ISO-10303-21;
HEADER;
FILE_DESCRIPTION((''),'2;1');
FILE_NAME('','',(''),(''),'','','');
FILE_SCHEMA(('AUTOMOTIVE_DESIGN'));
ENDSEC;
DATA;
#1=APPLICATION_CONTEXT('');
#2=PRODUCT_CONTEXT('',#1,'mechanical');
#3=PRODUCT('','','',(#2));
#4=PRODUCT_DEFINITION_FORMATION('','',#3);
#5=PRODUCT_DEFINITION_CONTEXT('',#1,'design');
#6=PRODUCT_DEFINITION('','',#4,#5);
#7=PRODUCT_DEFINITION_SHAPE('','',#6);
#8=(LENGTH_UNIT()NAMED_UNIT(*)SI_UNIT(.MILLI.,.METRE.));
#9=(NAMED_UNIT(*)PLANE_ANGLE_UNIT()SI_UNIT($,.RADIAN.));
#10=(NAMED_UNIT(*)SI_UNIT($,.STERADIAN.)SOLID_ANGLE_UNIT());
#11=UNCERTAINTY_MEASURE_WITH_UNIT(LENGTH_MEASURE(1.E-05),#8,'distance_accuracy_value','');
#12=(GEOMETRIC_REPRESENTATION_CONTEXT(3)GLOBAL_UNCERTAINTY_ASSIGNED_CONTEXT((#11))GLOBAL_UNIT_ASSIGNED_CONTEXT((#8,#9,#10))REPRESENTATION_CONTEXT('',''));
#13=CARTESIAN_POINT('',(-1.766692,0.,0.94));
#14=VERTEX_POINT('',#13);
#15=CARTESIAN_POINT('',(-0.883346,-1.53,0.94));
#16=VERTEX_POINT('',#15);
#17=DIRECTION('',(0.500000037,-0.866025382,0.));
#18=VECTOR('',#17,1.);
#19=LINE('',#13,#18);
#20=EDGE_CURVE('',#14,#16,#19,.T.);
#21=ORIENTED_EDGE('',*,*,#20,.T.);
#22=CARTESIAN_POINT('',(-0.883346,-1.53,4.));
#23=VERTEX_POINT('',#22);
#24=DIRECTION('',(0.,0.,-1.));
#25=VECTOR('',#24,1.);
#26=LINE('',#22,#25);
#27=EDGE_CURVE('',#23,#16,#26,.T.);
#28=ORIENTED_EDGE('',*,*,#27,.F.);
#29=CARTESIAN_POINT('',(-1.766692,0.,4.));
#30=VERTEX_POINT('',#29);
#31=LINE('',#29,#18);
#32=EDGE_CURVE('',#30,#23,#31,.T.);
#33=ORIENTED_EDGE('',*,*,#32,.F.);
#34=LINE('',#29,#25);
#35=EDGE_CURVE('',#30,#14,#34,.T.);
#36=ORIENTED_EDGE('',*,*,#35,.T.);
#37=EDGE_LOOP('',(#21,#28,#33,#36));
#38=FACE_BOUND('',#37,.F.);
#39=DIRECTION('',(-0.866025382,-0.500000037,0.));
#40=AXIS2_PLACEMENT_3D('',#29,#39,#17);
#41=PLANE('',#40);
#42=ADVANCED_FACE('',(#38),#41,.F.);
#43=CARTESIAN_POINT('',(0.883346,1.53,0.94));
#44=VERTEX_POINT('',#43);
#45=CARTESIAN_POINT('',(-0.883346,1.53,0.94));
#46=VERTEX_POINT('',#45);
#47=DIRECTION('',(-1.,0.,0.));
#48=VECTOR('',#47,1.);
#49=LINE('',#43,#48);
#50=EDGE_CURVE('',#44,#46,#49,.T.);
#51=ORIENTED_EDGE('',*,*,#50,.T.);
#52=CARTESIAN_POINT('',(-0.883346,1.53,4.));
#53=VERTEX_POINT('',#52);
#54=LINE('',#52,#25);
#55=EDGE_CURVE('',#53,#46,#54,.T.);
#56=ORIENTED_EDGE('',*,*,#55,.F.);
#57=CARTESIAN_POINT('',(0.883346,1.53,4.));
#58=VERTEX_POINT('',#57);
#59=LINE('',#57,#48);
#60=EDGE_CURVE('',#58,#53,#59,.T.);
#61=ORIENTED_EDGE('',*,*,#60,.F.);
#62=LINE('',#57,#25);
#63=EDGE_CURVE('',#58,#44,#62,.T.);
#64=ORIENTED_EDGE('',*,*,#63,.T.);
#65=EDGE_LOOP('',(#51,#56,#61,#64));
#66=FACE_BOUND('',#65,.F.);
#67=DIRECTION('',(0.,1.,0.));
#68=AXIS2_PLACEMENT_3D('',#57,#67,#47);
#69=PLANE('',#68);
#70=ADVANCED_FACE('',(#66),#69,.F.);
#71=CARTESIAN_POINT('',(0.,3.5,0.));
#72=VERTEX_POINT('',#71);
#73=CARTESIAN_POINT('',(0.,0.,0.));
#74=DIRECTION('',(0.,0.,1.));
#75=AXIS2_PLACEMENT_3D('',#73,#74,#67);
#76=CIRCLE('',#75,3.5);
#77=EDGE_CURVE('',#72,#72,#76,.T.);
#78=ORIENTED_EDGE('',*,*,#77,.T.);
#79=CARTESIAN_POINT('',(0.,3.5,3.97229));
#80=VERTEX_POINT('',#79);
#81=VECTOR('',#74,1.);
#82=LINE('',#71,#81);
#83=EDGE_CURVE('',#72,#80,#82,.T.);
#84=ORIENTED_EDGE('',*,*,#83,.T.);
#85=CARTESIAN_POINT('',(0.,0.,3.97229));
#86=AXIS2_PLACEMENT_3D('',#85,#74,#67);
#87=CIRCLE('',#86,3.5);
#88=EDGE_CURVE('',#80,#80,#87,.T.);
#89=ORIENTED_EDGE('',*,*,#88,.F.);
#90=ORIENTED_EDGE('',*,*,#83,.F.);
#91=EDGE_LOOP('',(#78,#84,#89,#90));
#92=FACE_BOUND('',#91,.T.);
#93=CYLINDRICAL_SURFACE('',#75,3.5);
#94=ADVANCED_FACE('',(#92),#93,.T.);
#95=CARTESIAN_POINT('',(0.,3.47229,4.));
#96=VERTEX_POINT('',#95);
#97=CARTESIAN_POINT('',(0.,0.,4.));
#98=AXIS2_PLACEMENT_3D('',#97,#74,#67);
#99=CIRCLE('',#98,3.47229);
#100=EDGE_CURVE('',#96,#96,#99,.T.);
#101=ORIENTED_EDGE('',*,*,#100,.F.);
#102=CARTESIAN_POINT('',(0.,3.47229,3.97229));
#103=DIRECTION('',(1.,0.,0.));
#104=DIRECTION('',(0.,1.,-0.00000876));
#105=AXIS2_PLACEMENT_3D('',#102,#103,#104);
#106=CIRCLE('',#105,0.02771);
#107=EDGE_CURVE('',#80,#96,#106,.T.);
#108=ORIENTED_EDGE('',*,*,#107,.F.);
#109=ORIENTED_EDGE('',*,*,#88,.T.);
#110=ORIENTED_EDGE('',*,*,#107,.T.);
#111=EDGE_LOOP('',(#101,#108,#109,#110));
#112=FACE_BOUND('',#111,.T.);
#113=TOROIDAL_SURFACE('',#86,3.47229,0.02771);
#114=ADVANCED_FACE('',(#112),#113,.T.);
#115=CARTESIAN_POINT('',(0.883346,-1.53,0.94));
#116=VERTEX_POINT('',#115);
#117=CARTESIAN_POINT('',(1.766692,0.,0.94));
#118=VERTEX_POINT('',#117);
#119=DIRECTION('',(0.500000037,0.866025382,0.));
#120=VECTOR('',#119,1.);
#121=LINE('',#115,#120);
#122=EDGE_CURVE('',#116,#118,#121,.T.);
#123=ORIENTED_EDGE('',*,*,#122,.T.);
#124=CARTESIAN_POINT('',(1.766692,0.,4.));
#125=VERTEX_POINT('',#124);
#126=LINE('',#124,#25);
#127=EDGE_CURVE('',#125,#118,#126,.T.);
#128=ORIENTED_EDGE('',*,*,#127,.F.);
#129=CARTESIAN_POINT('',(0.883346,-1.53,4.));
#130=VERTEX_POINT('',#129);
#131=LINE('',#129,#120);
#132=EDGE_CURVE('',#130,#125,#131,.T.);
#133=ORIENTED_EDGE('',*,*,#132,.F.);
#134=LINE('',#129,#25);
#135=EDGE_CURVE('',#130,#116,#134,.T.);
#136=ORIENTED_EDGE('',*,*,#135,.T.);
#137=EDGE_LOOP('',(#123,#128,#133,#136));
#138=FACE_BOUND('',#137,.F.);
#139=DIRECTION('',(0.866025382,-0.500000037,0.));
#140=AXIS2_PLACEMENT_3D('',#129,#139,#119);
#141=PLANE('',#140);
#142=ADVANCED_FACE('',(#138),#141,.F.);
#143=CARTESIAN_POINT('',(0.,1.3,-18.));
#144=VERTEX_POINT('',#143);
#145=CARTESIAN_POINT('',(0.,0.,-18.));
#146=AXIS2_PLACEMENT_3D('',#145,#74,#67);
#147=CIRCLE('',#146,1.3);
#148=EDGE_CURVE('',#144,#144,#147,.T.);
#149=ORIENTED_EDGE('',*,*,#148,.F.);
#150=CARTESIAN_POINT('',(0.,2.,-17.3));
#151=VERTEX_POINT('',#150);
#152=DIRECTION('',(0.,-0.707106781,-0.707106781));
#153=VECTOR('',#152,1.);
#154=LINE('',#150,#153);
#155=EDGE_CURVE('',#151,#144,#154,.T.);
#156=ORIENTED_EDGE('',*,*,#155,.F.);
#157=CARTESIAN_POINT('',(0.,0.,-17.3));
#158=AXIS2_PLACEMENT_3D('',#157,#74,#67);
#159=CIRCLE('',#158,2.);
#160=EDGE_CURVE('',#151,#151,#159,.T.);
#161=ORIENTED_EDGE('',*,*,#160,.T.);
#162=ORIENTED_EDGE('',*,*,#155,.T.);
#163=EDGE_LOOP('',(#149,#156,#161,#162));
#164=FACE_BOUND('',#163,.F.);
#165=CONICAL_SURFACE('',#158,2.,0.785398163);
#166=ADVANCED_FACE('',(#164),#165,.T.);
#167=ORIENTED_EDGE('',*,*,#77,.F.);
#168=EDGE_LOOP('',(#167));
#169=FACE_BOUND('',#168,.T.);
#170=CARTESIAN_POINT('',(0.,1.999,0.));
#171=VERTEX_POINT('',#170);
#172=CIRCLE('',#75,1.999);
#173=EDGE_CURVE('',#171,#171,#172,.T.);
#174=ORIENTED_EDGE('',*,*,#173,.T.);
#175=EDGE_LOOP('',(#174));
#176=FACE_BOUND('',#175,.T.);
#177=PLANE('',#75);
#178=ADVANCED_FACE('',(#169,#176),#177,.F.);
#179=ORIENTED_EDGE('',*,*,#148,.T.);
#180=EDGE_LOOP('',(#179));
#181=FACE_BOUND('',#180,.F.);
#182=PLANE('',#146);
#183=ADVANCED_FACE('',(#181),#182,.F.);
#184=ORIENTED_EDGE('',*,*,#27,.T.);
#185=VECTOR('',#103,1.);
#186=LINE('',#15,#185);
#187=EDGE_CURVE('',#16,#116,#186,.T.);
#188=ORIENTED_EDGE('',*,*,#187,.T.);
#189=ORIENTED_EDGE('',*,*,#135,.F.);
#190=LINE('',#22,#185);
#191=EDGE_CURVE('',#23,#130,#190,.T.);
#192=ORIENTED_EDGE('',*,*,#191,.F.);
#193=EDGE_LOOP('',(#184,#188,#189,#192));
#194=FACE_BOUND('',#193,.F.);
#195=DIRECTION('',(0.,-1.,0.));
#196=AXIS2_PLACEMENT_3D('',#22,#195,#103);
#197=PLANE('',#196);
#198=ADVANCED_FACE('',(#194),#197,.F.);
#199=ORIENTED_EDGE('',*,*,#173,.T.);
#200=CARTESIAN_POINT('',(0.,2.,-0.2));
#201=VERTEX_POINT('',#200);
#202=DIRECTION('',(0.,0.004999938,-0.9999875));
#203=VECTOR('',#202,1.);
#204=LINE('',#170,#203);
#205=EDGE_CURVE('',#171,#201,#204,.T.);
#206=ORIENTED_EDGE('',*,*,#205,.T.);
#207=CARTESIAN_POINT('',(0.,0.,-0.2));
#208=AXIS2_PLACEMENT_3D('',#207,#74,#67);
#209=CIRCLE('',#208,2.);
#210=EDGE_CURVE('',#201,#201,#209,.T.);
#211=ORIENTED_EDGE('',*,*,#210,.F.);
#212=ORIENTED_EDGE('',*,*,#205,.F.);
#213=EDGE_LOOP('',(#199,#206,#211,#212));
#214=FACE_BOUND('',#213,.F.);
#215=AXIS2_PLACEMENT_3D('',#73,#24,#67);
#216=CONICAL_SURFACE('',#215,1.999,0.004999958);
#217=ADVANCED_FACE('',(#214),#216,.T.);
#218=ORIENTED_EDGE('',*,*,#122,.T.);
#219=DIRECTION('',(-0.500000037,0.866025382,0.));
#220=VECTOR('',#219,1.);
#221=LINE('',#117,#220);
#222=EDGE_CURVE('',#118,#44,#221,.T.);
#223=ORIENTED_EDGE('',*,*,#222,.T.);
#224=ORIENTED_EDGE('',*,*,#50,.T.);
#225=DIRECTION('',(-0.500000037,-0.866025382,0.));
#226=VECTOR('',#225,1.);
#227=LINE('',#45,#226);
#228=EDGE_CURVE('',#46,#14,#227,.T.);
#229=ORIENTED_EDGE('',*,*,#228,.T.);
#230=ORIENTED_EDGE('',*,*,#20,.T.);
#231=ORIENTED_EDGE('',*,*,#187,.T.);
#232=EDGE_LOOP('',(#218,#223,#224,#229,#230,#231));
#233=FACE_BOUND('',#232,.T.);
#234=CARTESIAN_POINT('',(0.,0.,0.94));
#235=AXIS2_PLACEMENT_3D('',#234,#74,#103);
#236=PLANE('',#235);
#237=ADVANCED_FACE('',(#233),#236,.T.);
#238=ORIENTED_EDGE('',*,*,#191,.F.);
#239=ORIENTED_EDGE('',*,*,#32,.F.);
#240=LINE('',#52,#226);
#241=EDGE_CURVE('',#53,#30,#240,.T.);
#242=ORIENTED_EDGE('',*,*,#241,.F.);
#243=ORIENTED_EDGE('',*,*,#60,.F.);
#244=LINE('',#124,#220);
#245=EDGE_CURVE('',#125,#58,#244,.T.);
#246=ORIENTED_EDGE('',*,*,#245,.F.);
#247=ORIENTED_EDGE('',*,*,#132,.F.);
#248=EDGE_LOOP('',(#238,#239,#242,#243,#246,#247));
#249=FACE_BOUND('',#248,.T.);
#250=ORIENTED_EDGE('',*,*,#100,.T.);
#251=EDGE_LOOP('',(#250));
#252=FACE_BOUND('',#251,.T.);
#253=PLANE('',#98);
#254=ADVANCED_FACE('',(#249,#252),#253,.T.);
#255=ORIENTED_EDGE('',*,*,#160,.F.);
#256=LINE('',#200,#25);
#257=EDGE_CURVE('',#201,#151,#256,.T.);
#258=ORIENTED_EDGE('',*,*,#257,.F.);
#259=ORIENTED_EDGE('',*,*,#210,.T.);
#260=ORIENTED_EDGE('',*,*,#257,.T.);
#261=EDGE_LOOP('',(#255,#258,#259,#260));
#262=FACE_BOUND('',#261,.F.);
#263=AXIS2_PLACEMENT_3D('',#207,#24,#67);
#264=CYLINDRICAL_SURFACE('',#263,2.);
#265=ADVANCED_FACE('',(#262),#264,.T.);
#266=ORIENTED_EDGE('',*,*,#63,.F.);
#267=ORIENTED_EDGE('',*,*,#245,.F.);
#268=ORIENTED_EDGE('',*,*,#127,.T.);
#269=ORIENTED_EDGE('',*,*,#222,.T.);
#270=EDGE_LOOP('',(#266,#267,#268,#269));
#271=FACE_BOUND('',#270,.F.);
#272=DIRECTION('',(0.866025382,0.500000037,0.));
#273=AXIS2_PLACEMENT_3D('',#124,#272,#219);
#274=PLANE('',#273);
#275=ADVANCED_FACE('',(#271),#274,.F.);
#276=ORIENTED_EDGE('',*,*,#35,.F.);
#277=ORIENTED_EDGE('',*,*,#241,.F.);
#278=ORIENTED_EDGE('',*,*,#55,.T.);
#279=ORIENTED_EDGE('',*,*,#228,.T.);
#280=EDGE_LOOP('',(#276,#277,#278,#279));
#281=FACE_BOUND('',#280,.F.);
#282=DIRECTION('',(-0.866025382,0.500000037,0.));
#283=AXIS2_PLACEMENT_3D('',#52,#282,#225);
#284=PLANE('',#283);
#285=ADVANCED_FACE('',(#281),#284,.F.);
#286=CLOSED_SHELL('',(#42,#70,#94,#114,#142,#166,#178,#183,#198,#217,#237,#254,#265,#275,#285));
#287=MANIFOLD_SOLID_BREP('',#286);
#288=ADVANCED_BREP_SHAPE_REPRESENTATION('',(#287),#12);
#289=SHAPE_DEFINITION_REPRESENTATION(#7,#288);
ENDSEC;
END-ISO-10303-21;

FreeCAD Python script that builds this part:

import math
import FreeCAD as App
import Part
import Sketcher
Q = App.Units.Quantity


def add_polygon(sketch, points):
    """Adds a closed chain of lines whose ends are joined by coincident constraints."""
    first, n = sketch.GeometryCount, len(points)
    for a, b in zip(points, points[1:] + points[:1]):
        sketch.addGeometry(Part.LineSegment(App.Vector(*a, 0), App.Vector(*b, 0)), False)
    for i in range(n):
        sketch.addConstraint(Sketcher.Constraint("Coincident", first + i, 2, first + (i + 1) % n, 1))

doc = App.newDocument("Part")
body = doc.addObject("PartDesign::Body", "Body")

sketch1 = doc.addObject("Sketcher::SketchObject", "Sketch")
body.addObject(sketch1)
sketch1.AttachmentSupport = (doc.YZ_Plane, [""])
sketch1.MapMode = "FlatFace"
sketch1.addGeometry([
    Part.LineSegment(App.Vector(1.999, 0, 0), App.Vector(3.5, 0, 0)),
    Part.LineSegment(App.Vector(3.5, 0, 0), App.Vector(3.5, 3.972, 0)),
    Part.ArcOfCircle(Part.Circle(App.Vector(3.472, 3.972, 0), App.Vector(0, 0, 1), 0.028), math.radians(0), math.radians(90)),
    Part.LineSegment(App.Vector(3.472, 4, 0), App.Vector(0, 4, 0)),
    Part.LineSegment(App.Vector(0, 4, 0), App.Vector(0, -18, 0)),
    Part.LineSegment(App.Vector(0, -18, 0), App.Vector(1.3, -18, 0)),
    Part.LineSegment(App.Vector(1.3, -18, 0), App.Vector(2, -17.3, 0)),
    Part.LineSegment(App.Vector(2, -17.3, 0), App.Vector(2, -0.2, 0)),
    Part.LineSegment(App.Vector(2, -0.2, 0), App.Vector(1.999, 0, 0)),
], False)
sketch1.addConstraint([
    Sketcher.Constraint("Coincident", 0, 2, 1, 1),
    Sketcher.Constraint("Coincident", 1, 2, 2, 1),
    Sketcher.Constraint("Coincident", 2, 2, 3, 1),
    Sketcher.Constraint("Coincident", 3, 2, 4, 1),
    Sketcher.Constraint("Coincident", 4, 2, 5, 1),
    Sketcher.Constraint("Coincident", 5, 2, 6, 1),
    Sketcher.Constraint("Coincident", 6, 2, 7, 1),
    Sketcher.Constraint("Coincident", 7, 2, 8, 1),
    Sketcher.Constraint("Coincident", 8, 2, 0, 1),
    Sketcher.Constraint("Horizontal", 0),
    Sketcher.Constraint("Vertical", 1),
    Sketcher.Constraint("Horizontal", 3),
    Sketcher.Constraint("Vertical", 4),
    Sketcher.Constraint("Horizontal", 5),
    Sketcher.Constraint("Vertical", 7),
    Sketcher.Constraint("PointOnObject", 0, 2, -1),
    Sketcher.Constraint("PointOnObject", 3, 2, -2),
    Sketcher.Constraint("Horizontal", 2, 3, 1, 2),
    Sketcher.Constraint("DistanceY", 4, 2, 4, 1, Q("22 mm")),
    Sketcher.Constraint("Angle", 6, Q("45 deg")),
    Sketcher.Constraint("DistanceX", 5, 1, 5, 2, Q("1.3 mm")),
    Sketcher.Constraint("DistanceY", 7, 1, 7, 2, Q("17.1 mm")),
    Sketcher.Constraint("DistanceY", -1, 1, 2, 2, Q("4 mm")),
    Sketcher.Constraint("DistanceX", -1, 1, 6, 2, Q("2 mm")),
    Sketcher.Constraint("DistanceX", -1, 1, 0, 2, Q("3.5 mm")),
    Sketcher.Constraint("DistanceX", 0, 1, 0, 2, Q("1.501 mm")),
    Sketcher.Constraint("Radius", 2, Q("0.02771 mm")),
    Sketcher.Constraint("DistanceX", 3, 2, 3, 1, Q("3.47229 mm")),
])
revolution = doc.addObject("PartDesign::Revolution", "Revolution")
body.addObject(revolution)
revolution.Profile = sketch1
revolution.ReferenceAxis = (sketch1, ["V_Axis"])
revolution.Angle = 360

sketch2 = doc.addObject("Sketcher::SketchObject", "Sketch001")
body.addObject(sketch2)
sketch2.AttachmentSupport = (doc.XY_Plane, [""])
sketch2.MapMode = "FlatFace"
sketch2.AttachmentOffset = App.Placement(App.Vector(0, 0, 4), App.Rotation())
add_polygon(sketch2, [(1.8, 0), (0.9, 1.5), (-0.9, 1.5), (-1.8, 0), (-0.9, -1.5), (0.9, -1.5)])
sketch2.addConstraint([
    Sketcher.Constraint("Horizontal", 1),
    Sketcher.Constraint("Horizontal", 4),
    Sketcher.Constraint("Symmetric", 0, 2, 3, 2, -1, 1),
    Sketcher.Constraint("Symmetric", 2, 2, 5, 2, -1, 1),
    Sketcher.Constraint("PointOnObject", 2, 2, -1),
    Sketcher.Constraint("Parallel", 2, 5),
    Sketcher.Constraint("Vertical", 1, 2, 3, 2),
    Sketcher.Constraint("Angle", 0, Q("120.000002 deg")),
    Sketcher.Constraint("DistanceY", -1, 1, 0, 2, Q("1.53 mm")),
    Sketcher.Constraint("DistanceX", 1, 2, 1, 1, Q("1.766692 mm")),
])
pocket1 = doc.addObject("PartDesign::Pocket", "Pocket")
body.addObject(pocket1)
pocket1.Profile = sketch2
pocket1.Length = 3.06

doc.recompute()
